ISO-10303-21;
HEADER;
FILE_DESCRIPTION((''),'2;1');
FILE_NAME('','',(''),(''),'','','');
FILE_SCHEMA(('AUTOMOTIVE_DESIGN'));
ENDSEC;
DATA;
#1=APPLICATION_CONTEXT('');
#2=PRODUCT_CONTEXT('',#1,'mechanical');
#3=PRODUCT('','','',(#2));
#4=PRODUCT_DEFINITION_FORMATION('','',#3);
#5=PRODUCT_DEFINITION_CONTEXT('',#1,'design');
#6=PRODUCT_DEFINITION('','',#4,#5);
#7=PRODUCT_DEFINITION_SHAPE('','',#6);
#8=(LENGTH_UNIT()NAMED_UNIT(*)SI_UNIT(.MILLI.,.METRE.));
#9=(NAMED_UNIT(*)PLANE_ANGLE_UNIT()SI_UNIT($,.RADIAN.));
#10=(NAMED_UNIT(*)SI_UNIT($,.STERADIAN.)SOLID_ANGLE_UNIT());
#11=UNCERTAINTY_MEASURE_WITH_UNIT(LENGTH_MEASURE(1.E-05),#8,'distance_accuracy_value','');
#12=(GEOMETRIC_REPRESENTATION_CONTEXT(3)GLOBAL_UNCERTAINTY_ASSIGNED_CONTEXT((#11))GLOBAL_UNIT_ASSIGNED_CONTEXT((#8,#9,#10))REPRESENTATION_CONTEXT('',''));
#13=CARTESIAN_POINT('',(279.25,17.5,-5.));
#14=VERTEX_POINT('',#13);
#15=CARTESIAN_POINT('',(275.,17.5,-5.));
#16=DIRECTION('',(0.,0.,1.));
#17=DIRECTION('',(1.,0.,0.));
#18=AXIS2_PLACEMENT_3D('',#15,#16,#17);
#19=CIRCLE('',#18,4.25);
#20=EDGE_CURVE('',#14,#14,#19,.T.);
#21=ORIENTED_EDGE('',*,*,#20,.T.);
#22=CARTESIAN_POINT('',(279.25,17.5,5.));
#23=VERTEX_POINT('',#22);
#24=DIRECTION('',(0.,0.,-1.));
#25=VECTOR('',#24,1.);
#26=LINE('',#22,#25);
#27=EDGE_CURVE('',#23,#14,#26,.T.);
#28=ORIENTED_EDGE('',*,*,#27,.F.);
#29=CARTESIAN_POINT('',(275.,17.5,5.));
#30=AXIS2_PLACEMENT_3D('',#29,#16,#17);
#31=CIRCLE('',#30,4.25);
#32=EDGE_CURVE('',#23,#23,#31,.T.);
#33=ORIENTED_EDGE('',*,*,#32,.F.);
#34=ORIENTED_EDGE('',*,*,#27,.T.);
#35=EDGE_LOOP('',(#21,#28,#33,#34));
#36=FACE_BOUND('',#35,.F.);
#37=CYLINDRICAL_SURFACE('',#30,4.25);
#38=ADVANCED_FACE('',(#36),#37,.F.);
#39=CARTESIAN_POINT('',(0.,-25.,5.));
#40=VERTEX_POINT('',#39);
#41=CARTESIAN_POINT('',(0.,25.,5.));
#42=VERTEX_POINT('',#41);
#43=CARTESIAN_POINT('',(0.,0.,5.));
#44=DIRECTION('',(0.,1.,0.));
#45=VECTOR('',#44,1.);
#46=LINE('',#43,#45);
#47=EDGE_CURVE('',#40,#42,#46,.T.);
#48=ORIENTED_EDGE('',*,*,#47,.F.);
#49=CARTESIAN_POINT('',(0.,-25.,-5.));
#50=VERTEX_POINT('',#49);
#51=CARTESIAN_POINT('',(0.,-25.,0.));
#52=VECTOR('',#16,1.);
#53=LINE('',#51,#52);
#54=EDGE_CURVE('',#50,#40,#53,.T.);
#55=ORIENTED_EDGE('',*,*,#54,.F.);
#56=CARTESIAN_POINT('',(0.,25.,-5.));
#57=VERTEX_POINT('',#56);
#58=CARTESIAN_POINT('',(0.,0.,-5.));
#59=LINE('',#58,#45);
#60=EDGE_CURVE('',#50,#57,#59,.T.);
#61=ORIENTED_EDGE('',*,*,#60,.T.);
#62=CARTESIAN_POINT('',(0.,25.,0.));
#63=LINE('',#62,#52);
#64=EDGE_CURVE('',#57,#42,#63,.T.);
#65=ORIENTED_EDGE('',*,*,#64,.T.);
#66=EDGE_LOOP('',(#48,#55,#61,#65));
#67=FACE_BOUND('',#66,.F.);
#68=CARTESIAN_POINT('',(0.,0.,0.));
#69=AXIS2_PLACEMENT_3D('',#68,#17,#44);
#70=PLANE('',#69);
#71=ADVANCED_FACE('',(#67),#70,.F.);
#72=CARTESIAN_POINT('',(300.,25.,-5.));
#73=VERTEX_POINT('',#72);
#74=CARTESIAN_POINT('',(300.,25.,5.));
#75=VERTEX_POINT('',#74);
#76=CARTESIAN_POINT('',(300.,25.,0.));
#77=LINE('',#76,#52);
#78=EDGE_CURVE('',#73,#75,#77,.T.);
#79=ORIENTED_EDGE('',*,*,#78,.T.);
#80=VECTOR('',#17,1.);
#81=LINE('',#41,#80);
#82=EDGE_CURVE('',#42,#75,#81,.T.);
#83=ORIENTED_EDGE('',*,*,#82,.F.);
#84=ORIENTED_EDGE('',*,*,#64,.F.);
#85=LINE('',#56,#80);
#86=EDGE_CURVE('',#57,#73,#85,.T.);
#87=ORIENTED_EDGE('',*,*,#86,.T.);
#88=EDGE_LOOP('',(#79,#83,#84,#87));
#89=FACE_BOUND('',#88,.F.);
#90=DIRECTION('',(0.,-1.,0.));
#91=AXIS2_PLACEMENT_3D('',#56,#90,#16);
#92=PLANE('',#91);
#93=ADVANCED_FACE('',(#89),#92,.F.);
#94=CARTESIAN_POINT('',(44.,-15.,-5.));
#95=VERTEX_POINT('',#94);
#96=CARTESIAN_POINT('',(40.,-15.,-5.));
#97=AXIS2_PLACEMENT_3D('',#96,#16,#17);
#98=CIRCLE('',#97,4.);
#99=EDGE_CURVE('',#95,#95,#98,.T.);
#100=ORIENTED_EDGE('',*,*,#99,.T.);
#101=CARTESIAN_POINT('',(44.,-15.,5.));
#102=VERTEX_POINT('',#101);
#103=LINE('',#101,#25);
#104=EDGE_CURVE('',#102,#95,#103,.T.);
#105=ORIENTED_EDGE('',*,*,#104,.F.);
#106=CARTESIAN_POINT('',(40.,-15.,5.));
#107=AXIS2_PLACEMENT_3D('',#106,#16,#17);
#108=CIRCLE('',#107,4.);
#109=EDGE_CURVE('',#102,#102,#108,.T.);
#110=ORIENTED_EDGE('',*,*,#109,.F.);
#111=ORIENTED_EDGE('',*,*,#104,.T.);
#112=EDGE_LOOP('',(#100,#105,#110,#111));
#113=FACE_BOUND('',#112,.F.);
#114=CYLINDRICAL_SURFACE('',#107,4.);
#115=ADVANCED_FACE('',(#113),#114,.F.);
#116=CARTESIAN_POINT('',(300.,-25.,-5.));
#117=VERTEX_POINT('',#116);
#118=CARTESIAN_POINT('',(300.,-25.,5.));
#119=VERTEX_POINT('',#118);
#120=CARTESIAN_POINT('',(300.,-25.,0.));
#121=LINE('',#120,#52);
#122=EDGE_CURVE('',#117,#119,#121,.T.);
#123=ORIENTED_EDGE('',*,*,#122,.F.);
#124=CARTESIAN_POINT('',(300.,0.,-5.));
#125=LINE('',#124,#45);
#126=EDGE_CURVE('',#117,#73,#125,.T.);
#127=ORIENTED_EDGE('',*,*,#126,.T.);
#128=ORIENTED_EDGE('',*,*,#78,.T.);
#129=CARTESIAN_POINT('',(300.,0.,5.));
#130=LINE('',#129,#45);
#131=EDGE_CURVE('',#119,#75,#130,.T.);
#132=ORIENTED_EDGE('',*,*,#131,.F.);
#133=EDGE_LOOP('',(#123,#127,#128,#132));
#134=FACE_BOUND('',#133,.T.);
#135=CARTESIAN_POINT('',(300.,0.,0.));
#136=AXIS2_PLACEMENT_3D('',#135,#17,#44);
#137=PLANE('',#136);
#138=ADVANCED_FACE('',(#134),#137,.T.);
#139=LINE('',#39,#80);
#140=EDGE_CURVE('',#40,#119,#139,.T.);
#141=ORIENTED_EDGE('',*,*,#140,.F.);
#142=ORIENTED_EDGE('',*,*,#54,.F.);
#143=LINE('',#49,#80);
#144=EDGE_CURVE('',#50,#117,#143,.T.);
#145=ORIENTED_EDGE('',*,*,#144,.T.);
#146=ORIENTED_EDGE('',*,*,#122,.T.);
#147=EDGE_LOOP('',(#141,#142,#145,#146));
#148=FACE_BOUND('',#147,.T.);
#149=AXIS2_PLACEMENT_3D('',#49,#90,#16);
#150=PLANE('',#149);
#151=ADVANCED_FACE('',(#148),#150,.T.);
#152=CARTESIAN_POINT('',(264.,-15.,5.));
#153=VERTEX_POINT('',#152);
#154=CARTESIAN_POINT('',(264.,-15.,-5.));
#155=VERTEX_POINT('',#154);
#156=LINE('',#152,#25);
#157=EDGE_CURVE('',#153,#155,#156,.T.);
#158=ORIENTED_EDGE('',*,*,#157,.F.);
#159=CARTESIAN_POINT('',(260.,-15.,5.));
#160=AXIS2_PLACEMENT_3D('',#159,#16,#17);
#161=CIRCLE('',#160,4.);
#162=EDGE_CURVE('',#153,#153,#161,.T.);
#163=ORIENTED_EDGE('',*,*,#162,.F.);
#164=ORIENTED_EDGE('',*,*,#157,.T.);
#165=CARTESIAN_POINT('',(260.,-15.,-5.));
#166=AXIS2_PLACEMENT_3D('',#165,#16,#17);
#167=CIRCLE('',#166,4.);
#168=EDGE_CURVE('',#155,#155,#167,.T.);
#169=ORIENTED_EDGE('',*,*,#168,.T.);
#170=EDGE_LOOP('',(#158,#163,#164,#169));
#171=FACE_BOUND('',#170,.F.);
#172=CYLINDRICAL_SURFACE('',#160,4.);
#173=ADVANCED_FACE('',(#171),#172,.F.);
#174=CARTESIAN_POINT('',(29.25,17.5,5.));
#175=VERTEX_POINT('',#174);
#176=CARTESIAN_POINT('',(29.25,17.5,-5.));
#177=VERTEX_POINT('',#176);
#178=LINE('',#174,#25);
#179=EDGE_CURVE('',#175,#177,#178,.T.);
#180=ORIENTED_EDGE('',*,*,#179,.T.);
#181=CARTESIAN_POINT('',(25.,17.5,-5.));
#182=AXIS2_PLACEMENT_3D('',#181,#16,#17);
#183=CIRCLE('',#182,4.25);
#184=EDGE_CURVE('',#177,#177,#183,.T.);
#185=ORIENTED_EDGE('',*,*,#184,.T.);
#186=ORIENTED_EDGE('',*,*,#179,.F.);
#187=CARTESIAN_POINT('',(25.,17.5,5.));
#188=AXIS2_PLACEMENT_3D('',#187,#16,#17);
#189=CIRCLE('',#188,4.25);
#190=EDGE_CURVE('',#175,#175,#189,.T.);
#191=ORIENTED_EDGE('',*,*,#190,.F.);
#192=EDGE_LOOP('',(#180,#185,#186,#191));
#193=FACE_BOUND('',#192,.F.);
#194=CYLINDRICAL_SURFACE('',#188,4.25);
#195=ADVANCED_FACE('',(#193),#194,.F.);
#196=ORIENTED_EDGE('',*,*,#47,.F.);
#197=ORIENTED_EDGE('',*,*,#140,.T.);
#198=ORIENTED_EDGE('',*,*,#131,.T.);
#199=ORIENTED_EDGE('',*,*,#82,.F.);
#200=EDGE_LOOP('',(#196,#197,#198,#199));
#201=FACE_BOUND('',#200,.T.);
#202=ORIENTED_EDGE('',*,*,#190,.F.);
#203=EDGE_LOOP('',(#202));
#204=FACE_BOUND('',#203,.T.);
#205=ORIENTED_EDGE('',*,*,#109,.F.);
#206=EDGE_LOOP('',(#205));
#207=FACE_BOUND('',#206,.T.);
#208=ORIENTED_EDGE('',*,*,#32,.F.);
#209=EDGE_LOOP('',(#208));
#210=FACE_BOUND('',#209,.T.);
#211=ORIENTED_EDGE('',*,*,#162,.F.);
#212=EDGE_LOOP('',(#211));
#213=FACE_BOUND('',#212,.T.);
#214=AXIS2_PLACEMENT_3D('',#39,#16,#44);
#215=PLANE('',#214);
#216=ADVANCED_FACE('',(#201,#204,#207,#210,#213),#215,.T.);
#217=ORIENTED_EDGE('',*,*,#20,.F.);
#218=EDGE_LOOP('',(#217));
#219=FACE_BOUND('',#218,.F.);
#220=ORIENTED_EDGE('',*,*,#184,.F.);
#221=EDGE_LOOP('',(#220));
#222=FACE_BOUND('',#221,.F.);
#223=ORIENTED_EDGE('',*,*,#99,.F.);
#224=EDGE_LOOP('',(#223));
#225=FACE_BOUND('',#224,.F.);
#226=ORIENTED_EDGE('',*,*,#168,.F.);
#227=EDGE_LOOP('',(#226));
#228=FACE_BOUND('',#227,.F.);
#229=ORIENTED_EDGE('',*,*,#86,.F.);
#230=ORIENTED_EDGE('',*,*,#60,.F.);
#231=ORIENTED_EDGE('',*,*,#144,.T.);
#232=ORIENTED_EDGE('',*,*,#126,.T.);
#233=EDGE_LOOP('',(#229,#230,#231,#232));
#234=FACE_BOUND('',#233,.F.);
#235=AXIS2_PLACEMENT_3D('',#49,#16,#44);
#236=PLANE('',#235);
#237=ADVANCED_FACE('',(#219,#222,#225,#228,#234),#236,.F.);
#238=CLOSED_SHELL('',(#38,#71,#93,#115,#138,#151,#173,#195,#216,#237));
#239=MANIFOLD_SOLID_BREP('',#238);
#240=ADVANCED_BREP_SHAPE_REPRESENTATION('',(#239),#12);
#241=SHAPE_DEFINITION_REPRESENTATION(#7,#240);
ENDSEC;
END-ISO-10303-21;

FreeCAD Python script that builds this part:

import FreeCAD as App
import Part
import Sketcher

V = App.Vector


def add_polygon(sketch, points):
    """Adds a closed chain of lines whose ends are joined by coincident constraints."""
    first, n = sketch.GeometryCount, len(points)
    for a, b in zip(points, points[1:] + points[:1]):
        sketch.addGeometry(Part.LineSegment(App.Vector(*a, 0), App.Vector(*b, 0)), False)
    for i in range(n):
        sketch.addConstraint(Sketcher.Constraint("Coincident", first + i, 2, first + (i + 1) % n, 1))

doc = App.newDocument("Part")
body = doc.addObject("PartDesign::Body", "Body")

# Sketch on YZ plane
sketch1 = doc.addObject("Sketcher::SketchObject", "Sketch")
body.addObject(sketch1)
sketch1.AttachmentSupport = (doc.YZ_Plane, [""])
sketch1.MapMode = "FlatFace"
add_polygon(sketch1, [(-25, 5), (-25, -5), (25, -5), (25, 5)])  # lines 0-3
sketch1.addConstraint(Sketcher.Constraint("Vertical", 0))
sketch1.addConstraint(Sketcher.Constraint("Horizontal", 1))
sketch1.addConstraint(Sketcher.Constraint("Vertical", 2))
sketch1.addConstraint(Sketcher.Constraint("Horizontal", 3))
sketch1.addConstraint(Sketcher.Constraint("Symmetric", 0, 2, 2, 2, -1, 1))
sketch1.addConstraint(Sketcher.Constraint("DistanceX", 1, 1, 1, 2, 50.0))
sketch1.addConstraint(Sketcher.Constraint("DistanceY", 0, 2, 0, 1, 10.0))
pad1 = doc.addObject("PartDesign::Pad", "Pad")
body.addObject(pad1)
pad1.Profile = sketch1
pad1.Length = 300

# Sketch on XY plane
sketch2 = doc.addObject("Sketcher::SketchObject", "Sketch001")
body.addObject(sketch2)
sketch2.AttachmentSupport = (doc.XY_Plane, [""])
sketch2.MapMode = "FlatFace"
sketch2.AttachmentOffset = App.Placement(V(0, 0, 5), App.Rotation())
sketch2.addGeometry(Part.Circle(V(25, 17.5, 0), V(0, 0, 1), 4.2), False)
sketch2.addGeometry(Part.Circle(V(275, 17.5, 0), V(0, 0, 1), 4.2), False)
sketch2.addConstraint(Sketcher.Constraint("Equal", 0, 1))
sketch2.addConstraint(Sketcher.Constraint("Horizontal", 0, 3, 1, 3))
sketch2.addConstraint(Sketcher.Constraint("Diameter", 0, 8.5))
sketch2.addConstraint(Sketcher.Constraint("DistanceX", -1, 1, 0, 3, 25.0))
sketch2.addConstraint(Sketcher.Constraint("DistanceX", -1, 1, 1, 3, 275.0))
sketch2.addConstraint(Sketcher.Constraint("DistanceY", -1, 1, 0, 3, 17.5))
pocket1 = doc.addObject("PartDesign::Pocket", "Pocket")
body.addObject(pocket1)
pocket1.Profile = sketch2
pocket1.Length = 25

# Sketch on XY plane
sketch3 = doc.addObject("Sketcher::SketchObject", "Sketch002")
body.addObject(sketch3)
sketch3.AttachmentSupport = (doc.XY_Plane, [""])
sketch3.MapMode = "FlatFace"
sketch3.AttachmentOffset = App.Placement(V(0, 0, 5), App.Rotation())
sketch3.addGeometry(Part.Circle(V(40, -15, 0), V(0, 0, 1), 4), False)
sketch3.addGeometry(Part.Circle(V(260, -15, 0), V(0, 0, 1), 4), False)
sketch3.addConstraint(Sketcher.Constraint("Equal", 0, 1))
sketch3.addConstraint(Sketcher.Constraint("Horizontal", 0, 3, 1, 3))
sketch3.addConstraint(Sketcher.Constraint("Diameter", 0, 8.0))
sketch3.addConstraint(Sketcher.Constraint("DistanceX", -1, 1, 0, 3, 40.0))
sketch3.addConstraint(Sketcher.Constraint("DistanceY", 0, 3, -1, 1, 15.0))
sketch3.addConstraint(Sketcher.Constraint("DistanceX", -1, 1, 1, 3, 260.0))
pocket2 = doc.addObject("PartDesign::Pocket", "Pocket001")
body.addObject(pocket2)
pocket2.Profile = sketch3
pocket2.Length = 329

doc.recompute()
